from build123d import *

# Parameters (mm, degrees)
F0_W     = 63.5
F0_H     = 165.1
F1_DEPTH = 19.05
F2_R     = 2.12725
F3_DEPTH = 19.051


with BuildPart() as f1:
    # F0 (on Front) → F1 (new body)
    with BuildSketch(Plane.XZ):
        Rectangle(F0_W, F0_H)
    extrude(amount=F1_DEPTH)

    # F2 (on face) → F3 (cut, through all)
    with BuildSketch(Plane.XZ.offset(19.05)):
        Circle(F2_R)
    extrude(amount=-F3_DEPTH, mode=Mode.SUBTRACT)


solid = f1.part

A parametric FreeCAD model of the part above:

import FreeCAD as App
import Part
import Sketcher
Q = App.Units.Quantity

doc = App.newDocument("Part")
body = doc.addObject("PartDesign::Body", "Body")

# Sketch on XZ plane
sketch1 = body.newObject("Sketcher::SketchObject", "Sketch")
sketch1.AttachmentSupport = (doc.getObject("XZ_Plane"), [""])
sketch1.MapMode = "FlatFace"
sketch1.addGeometry([
    Part.LineSegment(App.Vector(-31.75, 82.55, 0), App.Vector(-31.75, -82.55, 0)),
    Part.LineSegment(App.Vector(-31.75, -82.55, 0), App.Vector(31.75, -82.55, 0)),
    Part.LineSegment(App.Vector(31.75, -82.55, 0), App.Vector(31.75, 82.55, 0)),
    Part.LineSegment(App.Vector(31.75, 82.55, 0), App.Vector(-31.75, 82.55, 0)),
], False)
sketch1.addConstraint([
    Sketcher.Constraint("Coincident", 0, 2, 1, 1),
    Sketcher.Constraint("Coincident", 1, 2, 2, 1),
    Sketcher.Constraint("Coincident", 2, 2, 3, 1),
    Sketcher.Constraint("Coincident", 3, 2, 0, 1),
    Sketcher.Constraint("Vertical", 0),
    Sketcher.Constraint("Horizontal", 1),
    Sketcher.Constraint("Vertical", 2),
    Sketcher.Constraint("Horizontal", 3),
    Sketcher.Constraint("Symmetric", 0, 2, 2, 2, -1, 1),
    Sketcher.Constraint("DistanceX", 1, 1, 1, 2, Q("2.5 in")),
    Sketcher.Constraint("DistanceY", 0, 2, 0, 1, Q("6.5 in")),
])
pad1 = body.newObject("PartDesign::Pad", "Pad")
pad1.Profile = sketch1
pad1.Length = Q("0.75 in")

# Sketch on XZ plane
sketch2 = body.newObject("Sketcher::SketchObject", "Sketch001")
sketch2.AttachmentSupport = (doc.getObject("XZ_Plane"), [""])
sketch2.MapMode = "FlatFace"
sketch2.AttachmentOffset = App.Placement(App.Vector(0, 0, 0.75 * 25.4), App.Rotation())
sketch2.addGeometry(Part.Circle(App.Vector(0, 0, 0), App.Vector(0, 0, 1), 2.12725), False)
sketch2.addConstraint([
    Sketcher.Constraint("Coincident", 0, 3, -1, 1),
    Sketcher.Constraint("Diameter", 0, Q("0.1675 in")),
])
pocket1 = body.newObject("PartDesign::Pocket", "Pocket")
pocket1.Profile = sketch2
pocket1.Type = "ThroughAll"

doc.recompute()
